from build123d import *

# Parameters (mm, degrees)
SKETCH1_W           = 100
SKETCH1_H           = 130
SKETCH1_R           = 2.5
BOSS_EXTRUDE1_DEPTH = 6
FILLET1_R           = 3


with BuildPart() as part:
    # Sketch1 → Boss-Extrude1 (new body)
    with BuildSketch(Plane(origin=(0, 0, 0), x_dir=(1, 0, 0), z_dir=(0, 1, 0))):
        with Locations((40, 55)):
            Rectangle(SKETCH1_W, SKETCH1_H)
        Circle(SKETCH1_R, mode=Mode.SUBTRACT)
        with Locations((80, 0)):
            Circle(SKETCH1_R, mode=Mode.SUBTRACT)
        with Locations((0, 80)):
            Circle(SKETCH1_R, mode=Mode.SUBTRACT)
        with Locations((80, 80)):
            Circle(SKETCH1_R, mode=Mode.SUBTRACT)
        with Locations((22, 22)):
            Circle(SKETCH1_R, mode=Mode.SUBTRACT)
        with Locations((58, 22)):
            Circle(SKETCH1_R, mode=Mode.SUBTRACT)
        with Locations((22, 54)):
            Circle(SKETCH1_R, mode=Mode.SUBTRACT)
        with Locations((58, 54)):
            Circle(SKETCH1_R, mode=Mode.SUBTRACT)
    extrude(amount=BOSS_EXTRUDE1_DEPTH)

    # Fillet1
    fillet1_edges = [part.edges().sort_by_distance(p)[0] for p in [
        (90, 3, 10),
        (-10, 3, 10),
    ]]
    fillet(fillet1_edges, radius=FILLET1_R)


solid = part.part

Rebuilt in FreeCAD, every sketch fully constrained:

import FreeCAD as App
import Part
import Sketcher

V = App.Vector
Q = App.Units.Quantity


def edges_at(feature, points):
    """Names of the edges that pass closest to the given points."""
    edges = feature.Shape.Edges
    near = lambda p: min(range(len(edges)), key=lambda i: edges[i].distToShape(Part.Vertex(*p))[0])
    return sorted({f"Edge{near(p) + 1}" for p in points})

doc = App.newDocument("Part")
params = doc.addObject("Spreadsheet::Sheet", "Params")
for row, (alias, value) in enumerate([
    ("sketch1_diameter", "5 mm"),
    ("sketch1_width", "100 mm"),
    ("sketch1_height", "130 mm"),
    ("pad1_length", "6 mm"),
    ("fillet_radius", "3 mm"),
], start=1):
    params.set(f"A{row}", alias)
    params.set(f"B{row}", "=" + value)
    params.setAlias(f"B{row}", alias)

body = doc.addObject("PartDesign::Body", "Body")

# Sketch on XZ plane
sketch1 = body.newObject("Sketcher::SketchObject", "Sketch")
sketch1.AttachmentSupport = (doc.getObject("XZ_Plane"), [""])
sketch1.MapMode = "FlatFace"
sketch1.addGeometry(Part.LineSegment(V(-10, -120, 0), V(-10, 10, 0)), False)
sketch1.addGeometry(Part.LineSegment(V(-10, 10, 0), V(90, 10, 0)), False)
sketch1.addGeometry(Part.LineSegment(V(90, 10, 0), V(90, -120, 0)), False)
sketch1.addGeometry(Part.LineSegment(V(90, -120, 0), V(-10, -120, 0)), False)
sketch1.addGeometry(Part.Circle(V(0, 0, 0), V(0, 0, 1), 2.5), False)
sketch1.addGeometry(Part.Circle(V(22, -22, 0), V(0, 0, 1), 2.5), False)
sketch1.addGeometry(Part.Circle(V(80, 0, 0), V(0, 0, 1), 2.5), False)
sketch1.addGeometry(Part.Circle(V(58, -22, 0), V(0, 0, 1), 2.5), False)
sketch1.addGeometry(Part.Circle(V(22, -54, 0), V(0, 0, 1), 2.5), False)
sketch1.addGeometry(Part.Circle(V(0, -80, 0), V(0, 0, 1), 2.5), False)
sketch1.addGeometry(Part.Circle(V(58, -54, 0), V(0, 0, 1), 2.5), False)
sketch1.addGeometry(Part.Circle(V(80, -80, 0), V(0, 0, 1), 2.5), False)
sketch1.addConstraint(Sketcher.Constraint("Coincident", 0, 2, 1, 1))
sketch1.addConstraint(Sketcher.Constraint("Coincident", 1, 2, 2, 1))
sketch1.addConstraint(Sketcher.Constraint("Coincident", 2, 2, 3, 1))
sketch1.addConstraint(Sketcher.Constraint("Coincident", 3, 2, 0, 1))
sketch1.addConstraint(Sketcher.Constraint("Vertical", 0))
sketch1.addConstraint(Sketcher.Constraint("Horizontal", 1))
sketch1.addConstraint(Sketcher.Constraint("Vertical", 2))
sketch1.addConstraint(Sketcher.Constraint("Horizontal", 3))
sketch1.addConstraint(Sketcher.Constraint("Coincident", 4, 3, -1, 1))
sketch1.addConstraint(Sketcher.Constraint("Equal", 4, 5))
sketch1.addConstraint(Sketcher.Constraint("Equal", 5, 6))
sketch1.addConstraint(Sketcher.Constraint("Equal", 6, 7))
sketch1.addConstraint(Sketcher.Constraint("Equal", 7, 8))
sketch1.addConstraint(Sketcher.Constraint("Equal", 8, 9))
sketch1.addConstraint(Sketcher.Constraint("Equal", 9, 10))
sketch1.addConstraint(Sketcher.Constraint("Equal", 10, 11))
sketch1.addConstraint(Sketcher.Constraint("PointOnObject", 6, 3, -1))
sketch1.addConstraint(Sketcher.Constraint("PointOnObject", 9, 3, -2))
sketch1.addConstraint(Sketcher.Constraint("Horizontal", 5, 3, 7, 3))
sketch1.addConstraint(Sketcher.Constraint("Horizontal", 8, 3, 10, 3))
sketch1.addConstraint(Sketcher.Constraint("Horizontal", 9, 3, 11, 3))
sketch1.addConstraint(Sketcher.Constraint("Vertical", 5, 3, 8, 3))
sketch1.addConstraint(Sketcher.Constraint("Vertical", 7, 3, 10, 3))
sketch1.addConstraint(Sketcher.Constraint("Vertical", 6, 3, 11, 3))
sketch1.addConstraint(Sketcher.Constraint("Diameter", 4, Q("5 mm")))
sketch1.addConstraint(Sketcher.Constraint("DistanceX", 1, 1, 1, 2, Q("100 mm")))
sketch1.addConstraint(Sketcher.Constraint("DistanceY", 0, 1, 0, 2, Q("130 mm")))
sketch1.addConstraint(Sketcher.Constraint("DistanceX", -1, 1, 5, 3, Q("22 mm")))
sketch1.addConstraint(Sketcher.Constraint("DistanceY", 5, 3, -1, 1, Q("22 mm")))
sketch1.addConstraint(Sketcher.Constraint("DistanceX", -1, 1, 6, 3, Q("80 mm")))
sketch1.addConstraint(Sketcher.Constraint("DistanceX", -1, 1, 7, 3, Q("58 mm")))
sketch1.addConstraint(Sketcher.Constraint("DistanceY", 8, 3, -1, 1, Q("54 mm")))
sketch1.addConstraint(Sketcher.Constraint("DistanceY", 9, 3, -1, 1, Q("80 mm")))
sketch1.addConstraint(Sketcher.Constraint("DistanceX", 0, 2, -1, 1, Q("10 mm")))
sketch1.addConstraint(Sketcher.Constraint("DistanceY", -1, 1, 0, 2, Q("10 mm")))
sketch1.setExpression("Constraints[24]", "Params.sketch1_diameter")
sketch1.setExpression("Constraints[25]", "Params.sketch1_width")
sketch1.setExpression("Constraints[26]", "Params.sketch1_height")
pad1 = body.newObject("PartDesign::Pad", "Pad")
pad1.Profile = sketch1
pad1.setExpression("Length", "Params.pad1_length")
pad1.Reversed = True
doc.recompute()

fillet = body.newObject("PartDesign::Fillet", "Fillet")
fillet.Base = (pad1, edges_at(pad1, [(90, 3, 10), (-10, 3, 10)]))
fillet.setExpression("Radius", "Params.fillet_radius")

doc.recompute()
